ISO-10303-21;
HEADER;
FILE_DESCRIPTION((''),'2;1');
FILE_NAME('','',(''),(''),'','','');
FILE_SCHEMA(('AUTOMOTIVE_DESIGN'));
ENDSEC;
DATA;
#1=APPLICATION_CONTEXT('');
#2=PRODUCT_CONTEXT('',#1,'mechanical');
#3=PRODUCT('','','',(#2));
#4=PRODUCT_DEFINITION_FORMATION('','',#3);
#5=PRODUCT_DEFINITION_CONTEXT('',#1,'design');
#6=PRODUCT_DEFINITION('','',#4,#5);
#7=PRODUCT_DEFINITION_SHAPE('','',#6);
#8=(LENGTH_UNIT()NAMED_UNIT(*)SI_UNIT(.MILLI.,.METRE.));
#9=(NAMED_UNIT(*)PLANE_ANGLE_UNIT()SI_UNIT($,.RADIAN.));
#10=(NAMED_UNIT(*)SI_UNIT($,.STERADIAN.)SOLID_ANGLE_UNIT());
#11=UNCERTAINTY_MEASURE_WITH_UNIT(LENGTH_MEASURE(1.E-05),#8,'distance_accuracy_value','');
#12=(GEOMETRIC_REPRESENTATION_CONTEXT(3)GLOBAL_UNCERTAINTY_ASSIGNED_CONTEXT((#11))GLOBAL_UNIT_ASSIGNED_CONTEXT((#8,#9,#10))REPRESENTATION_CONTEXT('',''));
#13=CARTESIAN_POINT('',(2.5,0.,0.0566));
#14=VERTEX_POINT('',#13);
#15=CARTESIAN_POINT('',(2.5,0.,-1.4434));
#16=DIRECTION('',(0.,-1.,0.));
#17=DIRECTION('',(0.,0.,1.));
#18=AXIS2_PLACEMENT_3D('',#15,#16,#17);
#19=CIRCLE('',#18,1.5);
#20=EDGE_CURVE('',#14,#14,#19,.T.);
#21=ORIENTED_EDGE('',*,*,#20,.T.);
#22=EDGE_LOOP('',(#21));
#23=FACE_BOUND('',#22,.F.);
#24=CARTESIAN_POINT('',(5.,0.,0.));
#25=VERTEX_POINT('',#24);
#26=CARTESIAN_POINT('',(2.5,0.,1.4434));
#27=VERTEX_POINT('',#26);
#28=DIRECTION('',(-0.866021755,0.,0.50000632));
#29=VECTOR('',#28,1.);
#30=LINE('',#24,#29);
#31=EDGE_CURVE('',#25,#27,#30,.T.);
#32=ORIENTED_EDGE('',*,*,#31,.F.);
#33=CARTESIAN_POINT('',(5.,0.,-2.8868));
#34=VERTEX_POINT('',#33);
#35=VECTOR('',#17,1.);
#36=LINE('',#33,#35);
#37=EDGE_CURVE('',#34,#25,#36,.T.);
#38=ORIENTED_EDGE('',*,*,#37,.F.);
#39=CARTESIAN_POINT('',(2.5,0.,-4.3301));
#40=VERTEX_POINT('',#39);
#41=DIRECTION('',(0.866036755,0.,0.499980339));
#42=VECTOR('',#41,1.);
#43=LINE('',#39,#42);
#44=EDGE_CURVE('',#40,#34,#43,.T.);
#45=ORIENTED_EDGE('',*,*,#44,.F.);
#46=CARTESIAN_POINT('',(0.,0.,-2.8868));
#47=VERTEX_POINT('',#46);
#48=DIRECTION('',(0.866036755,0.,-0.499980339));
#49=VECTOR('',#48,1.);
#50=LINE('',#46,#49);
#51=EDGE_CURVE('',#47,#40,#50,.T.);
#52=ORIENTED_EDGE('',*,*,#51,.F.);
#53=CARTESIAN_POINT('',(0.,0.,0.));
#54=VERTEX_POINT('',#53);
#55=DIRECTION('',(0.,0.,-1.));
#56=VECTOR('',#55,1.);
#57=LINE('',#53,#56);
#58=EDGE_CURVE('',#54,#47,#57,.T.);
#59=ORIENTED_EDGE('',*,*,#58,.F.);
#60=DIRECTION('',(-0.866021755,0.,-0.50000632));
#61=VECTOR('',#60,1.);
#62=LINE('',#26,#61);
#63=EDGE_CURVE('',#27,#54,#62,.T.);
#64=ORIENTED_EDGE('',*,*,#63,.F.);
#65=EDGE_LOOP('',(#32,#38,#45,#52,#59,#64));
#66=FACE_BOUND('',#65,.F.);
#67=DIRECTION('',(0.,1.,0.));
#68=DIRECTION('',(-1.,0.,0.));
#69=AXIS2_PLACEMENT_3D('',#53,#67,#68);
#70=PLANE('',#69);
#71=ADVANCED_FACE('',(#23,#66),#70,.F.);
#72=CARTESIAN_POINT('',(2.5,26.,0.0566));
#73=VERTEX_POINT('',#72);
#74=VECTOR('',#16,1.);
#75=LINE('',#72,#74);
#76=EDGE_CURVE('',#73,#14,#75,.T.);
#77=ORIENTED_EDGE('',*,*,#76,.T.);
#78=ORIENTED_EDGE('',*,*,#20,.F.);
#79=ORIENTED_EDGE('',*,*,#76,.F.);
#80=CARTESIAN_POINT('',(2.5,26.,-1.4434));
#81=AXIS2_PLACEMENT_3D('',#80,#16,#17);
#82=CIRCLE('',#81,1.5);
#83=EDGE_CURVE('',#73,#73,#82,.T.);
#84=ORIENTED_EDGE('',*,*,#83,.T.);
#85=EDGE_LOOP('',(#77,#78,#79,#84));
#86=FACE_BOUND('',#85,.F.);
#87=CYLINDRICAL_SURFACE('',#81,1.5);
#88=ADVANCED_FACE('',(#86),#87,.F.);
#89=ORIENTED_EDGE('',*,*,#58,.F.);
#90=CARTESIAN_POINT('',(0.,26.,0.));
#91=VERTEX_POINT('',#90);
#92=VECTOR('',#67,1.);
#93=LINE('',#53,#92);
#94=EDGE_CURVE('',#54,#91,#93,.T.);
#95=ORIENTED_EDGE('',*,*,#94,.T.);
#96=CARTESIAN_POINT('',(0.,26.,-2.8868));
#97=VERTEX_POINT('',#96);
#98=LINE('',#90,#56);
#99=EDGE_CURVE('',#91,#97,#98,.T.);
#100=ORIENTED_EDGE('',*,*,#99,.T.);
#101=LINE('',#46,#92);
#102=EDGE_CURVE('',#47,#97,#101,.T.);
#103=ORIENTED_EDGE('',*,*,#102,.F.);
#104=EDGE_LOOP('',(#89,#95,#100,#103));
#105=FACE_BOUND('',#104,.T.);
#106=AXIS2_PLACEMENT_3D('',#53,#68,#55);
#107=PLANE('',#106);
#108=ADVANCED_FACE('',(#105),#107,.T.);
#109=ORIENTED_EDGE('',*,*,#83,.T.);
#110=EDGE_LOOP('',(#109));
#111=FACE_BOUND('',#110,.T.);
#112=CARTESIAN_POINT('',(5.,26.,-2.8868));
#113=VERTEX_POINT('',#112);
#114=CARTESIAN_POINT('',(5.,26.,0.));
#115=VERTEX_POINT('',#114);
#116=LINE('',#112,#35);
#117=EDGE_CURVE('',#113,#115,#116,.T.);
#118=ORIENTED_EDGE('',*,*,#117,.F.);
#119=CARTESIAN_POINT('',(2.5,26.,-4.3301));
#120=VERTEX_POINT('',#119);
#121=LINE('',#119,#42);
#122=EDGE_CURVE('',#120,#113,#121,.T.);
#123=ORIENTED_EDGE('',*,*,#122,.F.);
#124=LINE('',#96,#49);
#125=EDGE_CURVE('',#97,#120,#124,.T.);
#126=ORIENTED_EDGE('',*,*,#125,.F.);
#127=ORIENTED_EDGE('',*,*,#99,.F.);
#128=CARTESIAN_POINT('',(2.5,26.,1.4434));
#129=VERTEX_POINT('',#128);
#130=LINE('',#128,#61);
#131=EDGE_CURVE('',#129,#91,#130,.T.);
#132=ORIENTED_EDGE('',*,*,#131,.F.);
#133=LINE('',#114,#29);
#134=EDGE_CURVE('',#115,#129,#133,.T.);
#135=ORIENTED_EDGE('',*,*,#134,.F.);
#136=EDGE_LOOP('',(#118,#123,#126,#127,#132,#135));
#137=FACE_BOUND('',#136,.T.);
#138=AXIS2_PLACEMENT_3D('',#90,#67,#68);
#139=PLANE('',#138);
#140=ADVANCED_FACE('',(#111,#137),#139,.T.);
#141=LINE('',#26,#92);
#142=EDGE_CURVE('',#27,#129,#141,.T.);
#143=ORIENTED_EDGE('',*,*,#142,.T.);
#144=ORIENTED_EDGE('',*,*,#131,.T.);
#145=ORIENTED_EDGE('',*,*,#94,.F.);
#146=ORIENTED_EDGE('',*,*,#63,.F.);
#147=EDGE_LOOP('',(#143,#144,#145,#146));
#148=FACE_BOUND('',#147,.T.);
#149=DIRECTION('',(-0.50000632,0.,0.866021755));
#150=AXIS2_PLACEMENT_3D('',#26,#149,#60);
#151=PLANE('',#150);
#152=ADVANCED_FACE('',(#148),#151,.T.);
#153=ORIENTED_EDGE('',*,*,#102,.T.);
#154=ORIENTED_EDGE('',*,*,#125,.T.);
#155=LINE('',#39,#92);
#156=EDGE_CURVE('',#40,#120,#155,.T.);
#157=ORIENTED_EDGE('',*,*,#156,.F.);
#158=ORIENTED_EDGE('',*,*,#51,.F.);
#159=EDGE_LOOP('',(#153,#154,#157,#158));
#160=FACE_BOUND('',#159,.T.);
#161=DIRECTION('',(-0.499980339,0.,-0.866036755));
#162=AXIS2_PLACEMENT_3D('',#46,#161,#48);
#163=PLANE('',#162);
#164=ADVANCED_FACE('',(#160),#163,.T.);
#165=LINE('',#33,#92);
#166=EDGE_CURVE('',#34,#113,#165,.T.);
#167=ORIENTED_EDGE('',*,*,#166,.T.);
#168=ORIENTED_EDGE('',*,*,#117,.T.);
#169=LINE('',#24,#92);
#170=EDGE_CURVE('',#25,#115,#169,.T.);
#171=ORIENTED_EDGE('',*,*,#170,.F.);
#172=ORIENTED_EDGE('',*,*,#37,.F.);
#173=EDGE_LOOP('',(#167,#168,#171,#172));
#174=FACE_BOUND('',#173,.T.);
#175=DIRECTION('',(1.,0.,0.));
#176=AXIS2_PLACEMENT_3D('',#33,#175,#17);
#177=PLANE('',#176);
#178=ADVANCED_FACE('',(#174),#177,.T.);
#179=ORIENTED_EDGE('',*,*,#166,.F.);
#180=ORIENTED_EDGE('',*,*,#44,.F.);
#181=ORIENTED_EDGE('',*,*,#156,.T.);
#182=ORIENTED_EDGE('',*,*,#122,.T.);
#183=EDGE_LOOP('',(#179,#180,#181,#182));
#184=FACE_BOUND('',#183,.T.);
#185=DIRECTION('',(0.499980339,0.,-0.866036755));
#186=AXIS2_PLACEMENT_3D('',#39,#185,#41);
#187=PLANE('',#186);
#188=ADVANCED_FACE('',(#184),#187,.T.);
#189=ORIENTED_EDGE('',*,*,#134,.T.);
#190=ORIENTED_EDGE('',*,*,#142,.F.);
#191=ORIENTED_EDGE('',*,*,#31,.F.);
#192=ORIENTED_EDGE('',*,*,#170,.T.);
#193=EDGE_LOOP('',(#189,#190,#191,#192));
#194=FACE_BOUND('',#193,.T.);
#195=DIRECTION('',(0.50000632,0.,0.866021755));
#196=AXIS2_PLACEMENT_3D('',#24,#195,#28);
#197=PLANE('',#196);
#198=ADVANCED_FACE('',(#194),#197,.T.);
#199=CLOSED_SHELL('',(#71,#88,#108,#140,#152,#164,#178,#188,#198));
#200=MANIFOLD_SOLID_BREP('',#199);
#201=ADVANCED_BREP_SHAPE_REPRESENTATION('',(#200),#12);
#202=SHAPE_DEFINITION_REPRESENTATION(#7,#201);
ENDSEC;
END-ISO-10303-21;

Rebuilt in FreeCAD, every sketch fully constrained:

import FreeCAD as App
import Part
import Sketcher
from FreeCAD import Vector
Q = App.Units.Quantity


def add_polygon(sketch, points):
    """Adds a closed chain of lines whose ends are joined by coincident constraints."""
    first, n = sketch.GeometryCount, len(points)
    for a, b in zip(points, points[1:] + points[:1]):
        sketch.addGeometry(Part.LineSegment(App.Vector(*a, 0), App.Vector(*b, 0)), False)
    for i in range(n):
        sketch.addConstraint(Sketcher.Constraint("Coincident", first + i, 2, first + (i + 1) % n, 1))

doc = App.newDocument("Part")
body = doc.addObject("PartDesign::Body", "Body")

sketch1 = body.newObject("Sketcher::SketchObject", "Sketch")
sketch1.AttachmentSupport = (doc.getObject("XZ_Plane"), [""])
sketch1.MapMode = "FlatFace"
add_polygon(sketch1, [(0, -2.9), (0, 0), (2.5, 1.4), (5, 0), (5, -2.9), (2.5, -4.3)])
sketch1.addConstraint(Sketcher.Constraint("Vertical", 0))
sketch1.addConstraint(Sketcher.Constraint("Vertical", 3))
sketch1.addConstraint(Sketcher.Constraint("Coincident", 0, 2, -1, 1))
sketch1.addConstraint(Sketcher.Constraint("PointOnObject", 2, 2, -1))
sketch1.addConstraint(Sketcher.Constraint("Parallel", 1, 4))
sketch1.addConstraint(Sketcher.Constraint("Parallel", 2, 5))
sketch1.addConstraint(Sketcher.Constraint("Horizontal", 3, 2, 5, 2))
sketch1.addConstraint(Sketcher.Constraint("Vertical", 1, 2, 4, 2))
sketch1.addConstraint(Sketcher.Constraint("DistanceX", -1, 1, 2, 2, Q("5 mm")))
sketch1.addConstraint(Sketcher.Constraint("Angle", 1, Q("30.0004 deg")))
sketch1.addConstraint(Sketcher.Constraint("DistanceY", 4, 2, -1, 1, Q("4.33 mm")))
pad1 = body.newObject("PartDesign::Pad", "Pad")
pad1.Profile = sketch1
pad1.Length = 26
pad1.Reversed = True

sketch2 = body.newObject("Sketcher::SketchObject", "Sketch001")
sketch2.AttachmentSupport = (doc.getObject("XZ_Plane"), [""])
sketch2.MapMode = "FlatFace"
sketch2.AttachmentOffset = App.Placement(Vector(0, 0, -26), App.Rotation())
sketch2.addGeometry(Part.Circle(Vector(2.5, -1.4, 0), Vector(0, 0, 1), 1.5), False)
sketch2.addConstraint(Sketcher.Constraint("Diameter", 0, Q("3 mm")))
sketch2.addConstraint(Sketcher.Constraint("DistanceX", -1, 1, 0, 3, Q("2.5 mm")))
sketch2.addConstraint(Sketcher.Constraint("DistanceY", 0, 3, -1, 1, Q("1.4434 mm")))
doc.recompute()
hole = body.newObject("PartDesign::Hole", "Hole")
hole.Profile = sketch2
hole.ThreadType = "None"
hole.Diameter = 3
hole.DepthType = "ThroughAll"
hole.Reversed = True

doc.recompute()
